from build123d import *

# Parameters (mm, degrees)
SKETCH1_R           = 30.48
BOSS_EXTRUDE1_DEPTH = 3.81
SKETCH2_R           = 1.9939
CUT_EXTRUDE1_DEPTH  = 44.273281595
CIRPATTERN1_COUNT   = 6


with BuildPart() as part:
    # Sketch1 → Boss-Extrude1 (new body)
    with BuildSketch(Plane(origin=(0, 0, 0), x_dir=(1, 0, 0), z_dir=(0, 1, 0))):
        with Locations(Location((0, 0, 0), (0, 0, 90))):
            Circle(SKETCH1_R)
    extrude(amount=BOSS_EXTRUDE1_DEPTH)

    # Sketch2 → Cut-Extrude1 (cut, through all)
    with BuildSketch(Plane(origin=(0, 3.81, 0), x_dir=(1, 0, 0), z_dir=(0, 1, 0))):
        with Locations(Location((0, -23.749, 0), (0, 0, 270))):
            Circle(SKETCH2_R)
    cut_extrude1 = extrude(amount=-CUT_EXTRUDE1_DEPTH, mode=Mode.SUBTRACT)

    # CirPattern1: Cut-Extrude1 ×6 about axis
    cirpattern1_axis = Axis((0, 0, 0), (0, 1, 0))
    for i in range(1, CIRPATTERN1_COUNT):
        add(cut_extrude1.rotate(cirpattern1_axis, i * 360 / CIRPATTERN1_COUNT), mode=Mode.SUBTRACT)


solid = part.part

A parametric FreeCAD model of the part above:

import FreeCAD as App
import Part
import Sketcher
from FreeCAD import Vector
Q = App.Units.Quantity

doc = App.newDocument("Part")
params = doc.addObject("Spreadsheet::Sheet", "Params")
for row, (alias, value) in enumerate([
    ("sketch1_diameter", "2.4 in"),
    ("pad1_length", "0.15 in"),
    ("sketch2_diameter", "0.157 in"),
], start=1):
    params.set(f"A{row}", alias)
    params.set(f"B{row}", "=" + value)
    params.setAlias(f"B{row}", alias)

body = doc.addObject("PartDesign::Body", "Body")

# Sketch on XZ plane
sketch1 = body.newObject("Sketcher::SketchObject", "Sketch")
sketch1.AttachmentSupport = (doc.getObject("XZ_Plane"), [""])
sketch1.MapMode = "FlatFace"
sketch1.addGeometry(Part.Circle(Vector(0, 0, 0), Vector(0, 0, 1), 30), False)
sketch1.addConstraint([
    Sketcher.Constraint("Coincident", 0, 3, -1, 1),
    Sketcher.Constraint("Diameter", 0, Q("2.4 in")),
])
sketch1.setExpression("Constraints[1]", "Params.sketch1_diameter")
pad1 = body.newObject("PartDesign::Pad", "Pad")
pad1.Profile = sketch1
pad1.setExpression("Length", "Params.pad1_length")
pad1.Reversed = True

# Sketch on XZ plane
sketch2 = body.newObject("Sketcher::SketchObject", "Sketch001")
sketch2.AttachmentSupport = (doc.getObject("XZ_Plane"), [""])
sketch2.MapMode = "FlatFace"
sketch2.AttachmentOffset = App.Placement(Vector(0, 0, -0.15 * 25.4), App.Rotation())
sketch2.addGeometry(Part.Circle(Vector(0, 23.7, 0), Vector(0, 0, 1), 2), False)
sketch2.addConstraint([
    Sketcher.Constraint("PointOnObject", 0, 3, -2),
    Sketcher.Constraint("Diameter", 0, Q("0.157 in")),
    Sketcher.Constraint("DistanceY", -1, 1, 0, 3, Q("0.935 in")),
])
sketch2.setExpression("Constraints[1]", "Params.sketch2_diameter")
pocket1 = body.newObject("PartDesign::Pocket", "Pocket")
pocket1.Profile = sketch2
pocket1.Type = "ThroughAll"
pocket1.Reversed = True
doc.recompute()

polarpattern = body.newObject("PartDesign::PolarPattern", "PolarPattern")
polarpattern.Originals = [pocket1]
polarpattern.Axis = (doc.getObject("Y_Axis"), [""])
polarpattern.Angle = 360
polarpattern.Occurrences = 6
body.Tip = polarpattern

doc.recompute()
